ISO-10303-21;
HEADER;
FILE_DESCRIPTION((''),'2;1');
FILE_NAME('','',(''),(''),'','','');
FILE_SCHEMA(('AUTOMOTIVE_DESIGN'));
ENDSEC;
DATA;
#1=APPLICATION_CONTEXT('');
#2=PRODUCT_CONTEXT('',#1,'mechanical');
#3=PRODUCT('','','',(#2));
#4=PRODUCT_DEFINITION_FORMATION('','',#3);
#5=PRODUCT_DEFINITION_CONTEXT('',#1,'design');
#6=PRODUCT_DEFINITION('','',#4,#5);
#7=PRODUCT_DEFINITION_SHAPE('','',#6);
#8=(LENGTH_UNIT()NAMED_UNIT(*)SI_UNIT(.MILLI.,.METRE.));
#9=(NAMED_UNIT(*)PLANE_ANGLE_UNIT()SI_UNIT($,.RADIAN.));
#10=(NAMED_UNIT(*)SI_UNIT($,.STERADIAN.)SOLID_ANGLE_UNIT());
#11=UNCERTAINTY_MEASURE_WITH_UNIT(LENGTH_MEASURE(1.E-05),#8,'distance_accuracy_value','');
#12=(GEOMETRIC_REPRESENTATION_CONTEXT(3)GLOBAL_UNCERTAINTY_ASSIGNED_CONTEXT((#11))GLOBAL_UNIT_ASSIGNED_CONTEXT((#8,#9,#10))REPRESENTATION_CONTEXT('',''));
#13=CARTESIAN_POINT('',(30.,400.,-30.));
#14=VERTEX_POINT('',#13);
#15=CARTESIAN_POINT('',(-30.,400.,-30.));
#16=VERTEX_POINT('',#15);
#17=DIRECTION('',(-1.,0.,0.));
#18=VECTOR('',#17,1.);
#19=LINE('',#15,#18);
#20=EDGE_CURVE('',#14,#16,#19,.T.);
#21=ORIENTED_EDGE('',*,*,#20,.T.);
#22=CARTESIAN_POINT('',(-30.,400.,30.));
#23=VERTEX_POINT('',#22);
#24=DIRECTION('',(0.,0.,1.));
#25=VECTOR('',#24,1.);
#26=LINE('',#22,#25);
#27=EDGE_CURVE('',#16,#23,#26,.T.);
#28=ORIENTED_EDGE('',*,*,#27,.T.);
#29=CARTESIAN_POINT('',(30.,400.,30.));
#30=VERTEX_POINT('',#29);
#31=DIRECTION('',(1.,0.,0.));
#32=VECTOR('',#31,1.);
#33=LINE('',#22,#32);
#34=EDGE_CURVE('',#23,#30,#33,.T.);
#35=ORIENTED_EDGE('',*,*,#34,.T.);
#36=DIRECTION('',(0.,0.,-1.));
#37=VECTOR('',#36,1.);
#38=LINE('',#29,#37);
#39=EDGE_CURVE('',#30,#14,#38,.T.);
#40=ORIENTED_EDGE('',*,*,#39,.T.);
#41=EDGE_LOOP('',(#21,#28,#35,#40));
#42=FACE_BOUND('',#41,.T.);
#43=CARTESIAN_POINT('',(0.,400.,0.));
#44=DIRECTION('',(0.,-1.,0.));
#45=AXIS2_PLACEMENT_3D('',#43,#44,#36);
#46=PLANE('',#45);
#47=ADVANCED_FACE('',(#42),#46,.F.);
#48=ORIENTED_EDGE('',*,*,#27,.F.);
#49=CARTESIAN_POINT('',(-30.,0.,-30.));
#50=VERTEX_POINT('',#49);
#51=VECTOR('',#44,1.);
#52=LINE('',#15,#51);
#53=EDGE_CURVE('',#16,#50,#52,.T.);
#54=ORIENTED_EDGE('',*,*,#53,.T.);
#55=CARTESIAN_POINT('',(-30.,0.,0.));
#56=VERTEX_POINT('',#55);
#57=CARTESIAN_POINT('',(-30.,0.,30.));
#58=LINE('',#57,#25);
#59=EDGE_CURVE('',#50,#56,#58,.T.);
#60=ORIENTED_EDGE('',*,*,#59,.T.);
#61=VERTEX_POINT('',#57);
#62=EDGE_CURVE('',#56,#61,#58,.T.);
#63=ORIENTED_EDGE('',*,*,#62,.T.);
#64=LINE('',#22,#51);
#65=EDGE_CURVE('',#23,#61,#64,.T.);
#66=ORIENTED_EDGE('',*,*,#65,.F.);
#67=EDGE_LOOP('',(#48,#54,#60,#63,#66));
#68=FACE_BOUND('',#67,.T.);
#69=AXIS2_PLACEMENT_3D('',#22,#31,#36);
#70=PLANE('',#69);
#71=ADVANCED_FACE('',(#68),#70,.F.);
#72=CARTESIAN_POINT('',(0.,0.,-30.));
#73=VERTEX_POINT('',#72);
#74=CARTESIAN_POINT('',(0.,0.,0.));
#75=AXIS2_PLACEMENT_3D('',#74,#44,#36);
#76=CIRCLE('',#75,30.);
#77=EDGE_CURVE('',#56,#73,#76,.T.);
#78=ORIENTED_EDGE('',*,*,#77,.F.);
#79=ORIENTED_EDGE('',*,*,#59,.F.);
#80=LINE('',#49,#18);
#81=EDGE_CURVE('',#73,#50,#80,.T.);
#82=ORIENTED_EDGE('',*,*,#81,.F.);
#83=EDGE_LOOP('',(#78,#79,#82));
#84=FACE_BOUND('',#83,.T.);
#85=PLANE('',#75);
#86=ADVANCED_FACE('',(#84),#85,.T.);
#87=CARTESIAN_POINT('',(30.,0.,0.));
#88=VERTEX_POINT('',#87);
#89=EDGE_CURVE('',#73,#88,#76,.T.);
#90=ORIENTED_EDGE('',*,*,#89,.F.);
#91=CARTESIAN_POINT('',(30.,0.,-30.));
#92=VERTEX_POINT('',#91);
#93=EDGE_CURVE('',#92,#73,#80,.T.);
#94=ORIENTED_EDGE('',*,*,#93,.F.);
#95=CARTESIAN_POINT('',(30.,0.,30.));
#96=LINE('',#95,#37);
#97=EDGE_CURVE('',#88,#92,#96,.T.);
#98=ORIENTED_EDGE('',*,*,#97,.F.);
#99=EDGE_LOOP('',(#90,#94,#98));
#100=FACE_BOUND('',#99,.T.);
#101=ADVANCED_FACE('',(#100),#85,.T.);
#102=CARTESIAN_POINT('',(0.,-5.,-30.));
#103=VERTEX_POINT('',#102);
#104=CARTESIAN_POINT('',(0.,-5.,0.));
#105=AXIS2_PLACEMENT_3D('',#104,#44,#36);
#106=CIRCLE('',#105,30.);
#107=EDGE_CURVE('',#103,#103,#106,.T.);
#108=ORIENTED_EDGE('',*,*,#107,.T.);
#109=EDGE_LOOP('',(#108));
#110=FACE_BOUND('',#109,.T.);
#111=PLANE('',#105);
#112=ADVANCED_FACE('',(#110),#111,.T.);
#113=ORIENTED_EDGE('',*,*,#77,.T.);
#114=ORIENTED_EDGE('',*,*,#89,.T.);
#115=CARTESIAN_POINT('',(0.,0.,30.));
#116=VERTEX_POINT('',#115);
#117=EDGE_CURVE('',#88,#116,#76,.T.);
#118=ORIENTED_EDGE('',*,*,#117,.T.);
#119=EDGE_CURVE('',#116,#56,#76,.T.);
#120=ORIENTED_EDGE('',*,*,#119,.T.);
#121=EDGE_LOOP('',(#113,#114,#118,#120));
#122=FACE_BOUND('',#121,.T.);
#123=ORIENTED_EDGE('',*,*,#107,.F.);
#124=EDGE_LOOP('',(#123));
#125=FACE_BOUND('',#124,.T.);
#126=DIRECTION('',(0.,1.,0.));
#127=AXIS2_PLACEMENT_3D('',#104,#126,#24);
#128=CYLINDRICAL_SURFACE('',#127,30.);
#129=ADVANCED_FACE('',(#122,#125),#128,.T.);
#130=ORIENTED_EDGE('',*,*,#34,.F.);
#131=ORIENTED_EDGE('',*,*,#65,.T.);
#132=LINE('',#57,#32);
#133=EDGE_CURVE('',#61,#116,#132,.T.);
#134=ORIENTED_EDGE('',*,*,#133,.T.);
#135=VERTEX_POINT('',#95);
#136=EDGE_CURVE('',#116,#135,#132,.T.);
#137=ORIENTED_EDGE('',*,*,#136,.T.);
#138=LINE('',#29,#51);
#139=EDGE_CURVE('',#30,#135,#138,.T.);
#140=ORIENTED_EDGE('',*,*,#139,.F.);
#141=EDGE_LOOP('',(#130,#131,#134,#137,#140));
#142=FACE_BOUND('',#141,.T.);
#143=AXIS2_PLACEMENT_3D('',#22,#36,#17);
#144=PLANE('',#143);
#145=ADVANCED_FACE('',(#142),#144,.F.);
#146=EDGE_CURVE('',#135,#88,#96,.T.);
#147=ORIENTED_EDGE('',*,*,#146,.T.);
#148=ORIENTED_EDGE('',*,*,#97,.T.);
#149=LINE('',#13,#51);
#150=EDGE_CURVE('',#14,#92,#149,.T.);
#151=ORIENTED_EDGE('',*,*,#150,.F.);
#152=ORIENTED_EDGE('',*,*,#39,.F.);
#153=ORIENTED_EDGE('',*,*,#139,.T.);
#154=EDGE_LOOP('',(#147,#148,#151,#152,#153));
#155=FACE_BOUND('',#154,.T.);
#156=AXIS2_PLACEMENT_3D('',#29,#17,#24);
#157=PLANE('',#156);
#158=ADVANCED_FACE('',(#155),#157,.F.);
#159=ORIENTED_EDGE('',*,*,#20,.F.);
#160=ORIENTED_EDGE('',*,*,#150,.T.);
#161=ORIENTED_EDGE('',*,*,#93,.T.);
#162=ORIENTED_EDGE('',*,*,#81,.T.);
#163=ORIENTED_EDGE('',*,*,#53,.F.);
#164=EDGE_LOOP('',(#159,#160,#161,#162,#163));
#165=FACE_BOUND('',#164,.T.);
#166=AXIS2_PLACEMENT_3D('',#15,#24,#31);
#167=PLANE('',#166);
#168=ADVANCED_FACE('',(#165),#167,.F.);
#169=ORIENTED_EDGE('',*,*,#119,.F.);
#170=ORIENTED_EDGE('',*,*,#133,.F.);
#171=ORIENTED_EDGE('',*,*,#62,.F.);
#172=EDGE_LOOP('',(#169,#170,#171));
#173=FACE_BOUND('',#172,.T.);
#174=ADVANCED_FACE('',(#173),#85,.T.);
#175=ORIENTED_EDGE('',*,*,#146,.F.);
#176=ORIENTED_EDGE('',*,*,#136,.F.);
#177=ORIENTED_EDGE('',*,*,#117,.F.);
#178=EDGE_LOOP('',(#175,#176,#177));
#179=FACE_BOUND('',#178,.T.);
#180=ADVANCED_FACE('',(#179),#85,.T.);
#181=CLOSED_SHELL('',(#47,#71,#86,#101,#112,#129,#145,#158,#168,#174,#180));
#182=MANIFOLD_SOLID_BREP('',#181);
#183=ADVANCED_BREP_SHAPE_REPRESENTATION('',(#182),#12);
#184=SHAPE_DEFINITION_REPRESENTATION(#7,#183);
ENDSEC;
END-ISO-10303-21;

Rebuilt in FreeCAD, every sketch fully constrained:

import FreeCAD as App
import Part
import Sketcher

V = App.Vector
Q = App.Units.Quantity

doc = App.newDocument("Part")
body = doc.addObject("PartDesign::Body", "Body")

sketch1 = body.newObject("Sketcher::SketchObject", "Sketch")
sketch1.AttachmentSupport = (doc.getObject("XZ_Plane"), [""])
sketch1.MapMode = "FlatFace"
sketch1.addGeometry(Part.LineSegment(V(-30, -30, 0), V(-30, 30, 0)), False)
sketch1.addGeometry(Part.LineSegment(V(-30, 30, 0), V(30, 30, 0)), False)
sketch1.addGeometry(Part.LineSegment(V(30, 30, 0), V(30, -30, 0)), False)
sketch1.addGeometry(Part.LineSegment(V(30, -30, 0), V(-30, -30, 0)), False)
sketch1.addConstraint(Sketcher.Constraint("Coincident", 0, 2, 1, 1))
sketch1.addConstraint(Sketcher.Constraint("Coincident", 1, 2, 2, 1))
sketch1.addConstraint(Sketcher.Constraint("Coincident", 2, 2, 3, 1))
sketch1.addConstraint(Sketcher.Constraint("Coincident", 3, 2, 0, 1))
sketch1.addConstraint(Sketcher.Constraint("Vertical", 0))
sketch1.addConstraint(Sketcher.Constraint("Horizontal", 1))
sketch1.addConstraint(Sketcher.Constraint("Vertical", 2))
sketch1.addConstraint(Sketcher.Constraint("Horizontal", 3))
sketch1.addConstraint(Sketcher.Constraint("Symmetric", 0, 2, 2, 2, -1, 1))
sketch1.addConstraint(Sketcher.Constraint("Equal", 3, 0))
sketch1.addConstraint(Sketcher.Constraint("DistanceX", 1, 1, 1, 2, Q("60 mm")))
pad1 = body.newObject("PartDesign::Pad", "Pad")
pad1.Profile = sketch1
pad1.Length = 400
pad1.Reversed = True

sketch2 = body.newObject("Sketcher::SketchObject", "Sketch001")
sketch2.AttachmentSupport = (doc.getObject("XZ_Plane"), [""])
sketch2.MapMode = "FlatFace"
sketch2.addGeometry(Part.Circle(V(0, 0, 0), V(0, 0, 1), 30), False)
sketch2.addConstraint(Sketcher.Constraint("Coincident", 0, 3, -1, 1))
sketch2.addConstraint(Sketcher.Constraint("Diameter", 0, Q("60 mm")))
pad2 = body.newObject("PartDesign::Pad", "Pad001")
pad2.Profile = sketch2
pad2.Length = 5

doc.recompute()
